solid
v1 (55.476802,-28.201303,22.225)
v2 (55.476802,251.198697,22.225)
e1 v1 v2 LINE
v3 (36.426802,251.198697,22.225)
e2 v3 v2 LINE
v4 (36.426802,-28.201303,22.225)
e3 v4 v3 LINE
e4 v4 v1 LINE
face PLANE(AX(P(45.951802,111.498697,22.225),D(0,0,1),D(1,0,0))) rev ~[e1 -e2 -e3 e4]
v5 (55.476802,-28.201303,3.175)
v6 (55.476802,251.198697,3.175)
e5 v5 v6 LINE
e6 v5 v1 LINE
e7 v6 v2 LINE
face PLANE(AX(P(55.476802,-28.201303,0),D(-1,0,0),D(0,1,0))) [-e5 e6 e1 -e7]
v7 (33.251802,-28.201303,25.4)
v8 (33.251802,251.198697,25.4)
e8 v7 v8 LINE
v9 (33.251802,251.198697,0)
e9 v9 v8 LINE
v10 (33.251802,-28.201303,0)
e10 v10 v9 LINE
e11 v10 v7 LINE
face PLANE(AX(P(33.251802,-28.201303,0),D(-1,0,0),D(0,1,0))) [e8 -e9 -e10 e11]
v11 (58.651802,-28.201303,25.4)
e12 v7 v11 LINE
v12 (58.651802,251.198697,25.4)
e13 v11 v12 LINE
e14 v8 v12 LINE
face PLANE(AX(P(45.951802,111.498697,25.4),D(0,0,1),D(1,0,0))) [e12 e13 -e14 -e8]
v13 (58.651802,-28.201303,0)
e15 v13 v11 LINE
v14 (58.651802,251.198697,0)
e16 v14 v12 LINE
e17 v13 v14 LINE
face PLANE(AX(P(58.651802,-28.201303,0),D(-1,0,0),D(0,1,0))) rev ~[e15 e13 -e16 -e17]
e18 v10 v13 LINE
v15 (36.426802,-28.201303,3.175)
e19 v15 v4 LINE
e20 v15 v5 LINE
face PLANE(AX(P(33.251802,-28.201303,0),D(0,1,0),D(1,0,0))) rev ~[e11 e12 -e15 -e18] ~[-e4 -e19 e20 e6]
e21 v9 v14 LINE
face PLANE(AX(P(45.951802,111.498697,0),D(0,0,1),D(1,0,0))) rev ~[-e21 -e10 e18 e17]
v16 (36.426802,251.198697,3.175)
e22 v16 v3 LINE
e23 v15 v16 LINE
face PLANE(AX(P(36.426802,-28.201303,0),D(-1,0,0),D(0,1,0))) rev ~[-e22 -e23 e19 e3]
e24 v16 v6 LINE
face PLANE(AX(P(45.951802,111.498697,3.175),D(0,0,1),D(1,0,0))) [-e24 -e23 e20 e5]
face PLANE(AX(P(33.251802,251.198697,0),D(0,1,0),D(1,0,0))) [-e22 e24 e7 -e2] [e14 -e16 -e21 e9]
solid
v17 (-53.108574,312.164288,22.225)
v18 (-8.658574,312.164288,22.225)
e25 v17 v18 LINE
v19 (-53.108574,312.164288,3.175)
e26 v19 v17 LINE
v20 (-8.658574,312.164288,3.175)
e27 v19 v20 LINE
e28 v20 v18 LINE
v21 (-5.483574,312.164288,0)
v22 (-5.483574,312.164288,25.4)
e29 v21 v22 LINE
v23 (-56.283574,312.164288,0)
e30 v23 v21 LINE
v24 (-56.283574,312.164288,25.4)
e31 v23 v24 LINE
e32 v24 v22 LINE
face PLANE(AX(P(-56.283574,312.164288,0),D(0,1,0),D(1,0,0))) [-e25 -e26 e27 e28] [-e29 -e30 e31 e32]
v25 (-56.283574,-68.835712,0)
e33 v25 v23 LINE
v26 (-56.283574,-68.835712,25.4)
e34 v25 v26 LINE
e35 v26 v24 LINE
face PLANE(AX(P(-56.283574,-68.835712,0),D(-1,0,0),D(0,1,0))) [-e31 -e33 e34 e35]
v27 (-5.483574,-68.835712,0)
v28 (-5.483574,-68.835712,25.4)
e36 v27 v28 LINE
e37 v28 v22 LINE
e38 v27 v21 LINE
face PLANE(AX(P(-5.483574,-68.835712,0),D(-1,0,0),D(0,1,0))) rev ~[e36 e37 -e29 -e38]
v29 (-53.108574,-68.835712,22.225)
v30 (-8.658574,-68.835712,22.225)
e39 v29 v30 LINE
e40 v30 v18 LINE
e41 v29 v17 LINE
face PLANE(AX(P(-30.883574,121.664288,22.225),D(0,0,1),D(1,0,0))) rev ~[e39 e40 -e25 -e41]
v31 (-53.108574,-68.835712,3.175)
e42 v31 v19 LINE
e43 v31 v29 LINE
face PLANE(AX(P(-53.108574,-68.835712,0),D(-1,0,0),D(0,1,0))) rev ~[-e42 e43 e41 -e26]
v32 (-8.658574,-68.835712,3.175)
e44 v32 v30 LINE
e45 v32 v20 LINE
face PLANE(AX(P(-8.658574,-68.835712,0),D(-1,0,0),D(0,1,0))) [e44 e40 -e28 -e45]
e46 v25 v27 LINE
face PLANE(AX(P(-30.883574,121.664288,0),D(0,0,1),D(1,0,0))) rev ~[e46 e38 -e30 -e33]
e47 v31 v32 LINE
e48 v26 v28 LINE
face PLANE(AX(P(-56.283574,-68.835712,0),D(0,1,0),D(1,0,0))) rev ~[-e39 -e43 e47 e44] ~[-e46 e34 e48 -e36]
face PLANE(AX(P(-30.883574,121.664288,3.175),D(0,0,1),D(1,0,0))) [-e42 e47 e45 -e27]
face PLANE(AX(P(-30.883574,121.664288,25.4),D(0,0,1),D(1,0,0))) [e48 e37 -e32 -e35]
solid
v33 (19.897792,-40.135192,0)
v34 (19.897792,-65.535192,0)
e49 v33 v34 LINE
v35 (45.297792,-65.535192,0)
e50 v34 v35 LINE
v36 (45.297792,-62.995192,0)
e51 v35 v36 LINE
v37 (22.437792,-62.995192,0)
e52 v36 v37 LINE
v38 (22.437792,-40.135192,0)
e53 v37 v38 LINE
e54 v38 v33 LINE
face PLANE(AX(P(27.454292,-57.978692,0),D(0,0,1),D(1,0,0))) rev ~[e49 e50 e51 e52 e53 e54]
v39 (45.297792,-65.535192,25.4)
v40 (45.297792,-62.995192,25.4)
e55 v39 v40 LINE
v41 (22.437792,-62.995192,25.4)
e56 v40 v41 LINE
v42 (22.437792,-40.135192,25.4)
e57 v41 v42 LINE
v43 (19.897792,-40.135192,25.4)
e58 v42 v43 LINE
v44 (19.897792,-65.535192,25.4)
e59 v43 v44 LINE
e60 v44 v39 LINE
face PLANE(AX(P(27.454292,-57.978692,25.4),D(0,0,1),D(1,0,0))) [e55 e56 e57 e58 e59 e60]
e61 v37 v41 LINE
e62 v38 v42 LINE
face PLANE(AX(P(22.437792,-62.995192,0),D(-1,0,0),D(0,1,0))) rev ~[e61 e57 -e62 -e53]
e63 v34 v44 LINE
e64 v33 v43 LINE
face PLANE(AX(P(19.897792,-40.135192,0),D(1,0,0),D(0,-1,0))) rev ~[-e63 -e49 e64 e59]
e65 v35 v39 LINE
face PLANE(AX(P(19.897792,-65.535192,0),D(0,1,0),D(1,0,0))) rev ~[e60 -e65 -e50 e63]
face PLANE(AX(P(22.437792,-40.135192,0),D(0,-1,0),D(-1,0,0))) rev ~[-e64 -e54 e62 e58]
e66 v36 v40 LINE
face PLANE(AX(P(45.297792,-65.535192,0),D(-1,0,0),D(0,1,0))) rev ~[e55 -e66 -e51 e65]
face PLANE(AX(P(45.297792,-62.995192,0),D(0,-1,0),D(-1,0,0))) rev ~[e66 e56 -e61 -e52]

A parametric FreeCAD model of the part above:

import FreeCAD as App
import Part
import Sketcher

V = App.Vector
Q = App.Units.Quantity


def faces_at(feature, points):
    """Names of the faces that lie closest to the given points."""
    faces = feature.Shape.Faces
    near = lambda p: min(range(len(faces)), key=lambda i: faces[i].distToShape(Part.Vertex(*p))[0])
    return sorted({f"Face{near(p) + 1}" for p in points})

doc = App.newDocument("Part")
body = doc.addObject("PartDesign::Body", "Body")

# Sketch on XY plane
sketch1 = doc.addObject("Sketcher::SketchObject", "Sketch")
body.addObject(sketch1)
sketch1.AttachmentSupport = (doc.XY_Plane, [""])
sketch1.MapMode = "FlatFace"
sketch1.addGeometry([
    Part.LineSegment(V(-56, 312, 0), V(-56, -69, 0)),
    Part.LineSegment(V(-56, -69, 0), V(-5, -69, 0)),
    Part.LineSegment(V(-5, -69, 0), V(-5, 312, 0)),
    Part.LineSegment(V(-5, 312, 0), V(-56, 312, 0)),
], False)
sketch1.addConstraint([
    Sketcher.Constraint("Coincident", 0, 2, 1, 1),
    Sketcher.Constraint("Coincident", 1, 2, 2, 1),
    Sketcher.Constraint("Coincident", 2, 2, 3, 1),
    Sketcher.Constraint("Coincident", 3, 2, 0, 1),
    Sketcher.Constraint("Vertical", 0),
    Sketcher.Constraint("Horizontal", 1),
    Sketcher.Constraint("Vertical", 2),
    Sketcher.Constraint("Horizontal", 3),
    Sketcher.Constraint("DistanceX", 1, 1, 1, 2, Q("2 in")),
    Sketcher.Constraint("DistanceY", 0, 2, 0, 1, Q("15 in")),
    Sketcher.Constraint("DistanceY", 0, 2, -1, 1, Q("68.835712 mm")),
    Sketcher.Constraint("DistanceX", 0, 2, -1, 1, Q("56.283574 mm")),
])
pad1 = doc.addObject("PartDesign::Pad", "Pad")
body.addObject(pad1)
pad1.Profile = sketch1
pad1.Length = Q("1 in")
doc.recompute()

thickness = doc.addObject("PartDesign::Thickness", "Thickness")
body.addObject(thickness)
thickness.Base = (pad1, faces_at(pad1, [(-30.884, -68.836, 12.7), (-30.884, 312.164, 12.7)]))
thickness.Value = Q("0.125 in")
thickness.Reversed = True
thickness.Join = "Arc"
body2 = doc.addObject("PartDesign::Body", "Body001")

# Sketch on XY plane
sketch2 = doc.addObject("Sketcher::SketchObject", "Sketch001")
body2.addObject(sketch2)
sketch2.AttachmentSupport = (doc.getObject("XY_Plane001"), [""])
sketch2.MapMode = "FlatFace"
sketch2.addGeometry([
    Part.LineSegment(V(33, 251, 0), V(33, -28, 0)),
    Part.LineSegment(V(33, -28, 0), V(59, -28, 0)),
    Part.LineSegment(V(59, -28, 0), V(59, 251, 0)),
    Part.LineSegment(V(59, 251, 0), V(33, 251, 0)),
], False)
sketch2.addConstraint([
    Sketcher.Constraint("Coincident", 0, 2, 1, 1),
    Sketcher.Constraint("Coincident", 1, 2, 2, 1),
    Sketcher.Constraint("Coincident", 2, 2, 3, 1),
    Sketcher.Constraint("Coincident", 3, 2, 0, 1),
    Sketcher.Constraint("Vertical", 0),
    Sketcher.Constraint("Horizontal", 1),
    Sketcher.Constraint("Vertical", 2),
    Sketcher.Constraint("Horizontal", 3),
    Sketcher.Constraint("DistanceX", 1, 1, 1, 2, Q("1 in")),
    Sketcher.Constraint("DistanceY", 0, 2, 0, 1, Q("11 in")),
    Sketcher.Constraint("DistanceX", -1, 1, 0, 2, Q("33.251802 mm")),
    Sketcher.Constraint("DistanceY", 0, 2, -1, 1, Q("28.201303 mm")),
])
pad2 = doc.addObject("PartDesign::Pad", "Pad001")
body2.addObject(pad2)
pad2.Profile = sketch2
pad2.Length = Q("1 in")
doc.recompute()

thickness2 = doc.addObject("PartDesign::Thickness", "Thickness001")
body2.addObject(thickness2)
thickness2.Base = (pad2, faces_at(pad2, [(45.952, -28.201, 12.7), (45.952, 251.199, 12.7)]))
thickness2.Value = Q("0.125 in")
thickness2.Reversed = True
thickness2.Join = "Arc"
body3 = doc.addObject("PartDesign::Body", "Body002")

# Sketch on XY plane
sketch3 = doc.addObject("Sketcher::SketchObject", "Sketch002")
body3.addObject(sketch3)
sketch3.AttachmentSupport = (doc.getObject("XY_Plane002"), [""])
sketch3.MapMode = "FlatFace"
sketch3.addGeometry([
    Part.LineSegment(V(22.4, -40.1, 0), V(19.9, -40.1, 0)),  # 0
    Part.LineSegment(V(19.9, -40.1, 0), V(19.9, -65.5, 0)),  # 1
    Part.LineSegment(V(19.9, -65.5, 0), V(45.3, -65.5, 0)),  # 2
    Part.LineSegment(V(45.3, -65.5, 0), V(45.3, -63, 0)),  # 3
    Part.LineSegment(V(45.3, -63, 0), V(22.4, -63, 0)),  # 4
    Part.LineSegment(V(22.4, -63, 0), V(22.4, -40.1, 0)),  # 5
], False)
sketch3.addConstraint([
    Sketcher.Constraint("Coincident", 0, 2, 1, 1),
    Sketcher.Constraint("Coincident", 1, 2, 2, 1),
    Sketcher.Constraint("Coincident", 2, 2, 3, 1),
    Sketcher.Constraint("Coincident", 3, 2, 4, 1),
    Sketcher.Constraint("Coincident", 4, 2, 5, 1),
    Sketcher.Constraint("Coincident", 5, 2, 0, 1),
    Sketcher.Constraint("Horizontal", 0),
    Sketcher.Constraint("Vertical", 1),
    Sketcher.Constraint("Horizontal", 2),
    Sketcher.Constraint("Vertical", 3),
    Sketcher.Constraint("Horizontal", 4),
    Sketcher.Constraint("Vertical", 5),
    Sketcher.Constraint("Equal", 2, 1),
    Sketcher.Constraint("Equal", 0, 3),
    Sketcher.Constraint("DistanceX", 2, 1, 2, 2, Q("1 in")),
    Sketcher.Constraint("DistanceX", 0, 2, 0, 1, Q("0.1 in")),
    Sketcher.Constraint("DistanceX", -1, 1, 0, 2, Q("19.897792 mm")),
    Sketcher.Constraint("DistanceY", 1, 2, -1, 1, Q("65.535192 mm")),
])
pad3 = doc.addObject("PartDesign::Pad", "Pad002")
body3.addObject(pad3)
pad3.Profile = sketch3
pad3.Length = Q("1 in")

doc.recompute()
